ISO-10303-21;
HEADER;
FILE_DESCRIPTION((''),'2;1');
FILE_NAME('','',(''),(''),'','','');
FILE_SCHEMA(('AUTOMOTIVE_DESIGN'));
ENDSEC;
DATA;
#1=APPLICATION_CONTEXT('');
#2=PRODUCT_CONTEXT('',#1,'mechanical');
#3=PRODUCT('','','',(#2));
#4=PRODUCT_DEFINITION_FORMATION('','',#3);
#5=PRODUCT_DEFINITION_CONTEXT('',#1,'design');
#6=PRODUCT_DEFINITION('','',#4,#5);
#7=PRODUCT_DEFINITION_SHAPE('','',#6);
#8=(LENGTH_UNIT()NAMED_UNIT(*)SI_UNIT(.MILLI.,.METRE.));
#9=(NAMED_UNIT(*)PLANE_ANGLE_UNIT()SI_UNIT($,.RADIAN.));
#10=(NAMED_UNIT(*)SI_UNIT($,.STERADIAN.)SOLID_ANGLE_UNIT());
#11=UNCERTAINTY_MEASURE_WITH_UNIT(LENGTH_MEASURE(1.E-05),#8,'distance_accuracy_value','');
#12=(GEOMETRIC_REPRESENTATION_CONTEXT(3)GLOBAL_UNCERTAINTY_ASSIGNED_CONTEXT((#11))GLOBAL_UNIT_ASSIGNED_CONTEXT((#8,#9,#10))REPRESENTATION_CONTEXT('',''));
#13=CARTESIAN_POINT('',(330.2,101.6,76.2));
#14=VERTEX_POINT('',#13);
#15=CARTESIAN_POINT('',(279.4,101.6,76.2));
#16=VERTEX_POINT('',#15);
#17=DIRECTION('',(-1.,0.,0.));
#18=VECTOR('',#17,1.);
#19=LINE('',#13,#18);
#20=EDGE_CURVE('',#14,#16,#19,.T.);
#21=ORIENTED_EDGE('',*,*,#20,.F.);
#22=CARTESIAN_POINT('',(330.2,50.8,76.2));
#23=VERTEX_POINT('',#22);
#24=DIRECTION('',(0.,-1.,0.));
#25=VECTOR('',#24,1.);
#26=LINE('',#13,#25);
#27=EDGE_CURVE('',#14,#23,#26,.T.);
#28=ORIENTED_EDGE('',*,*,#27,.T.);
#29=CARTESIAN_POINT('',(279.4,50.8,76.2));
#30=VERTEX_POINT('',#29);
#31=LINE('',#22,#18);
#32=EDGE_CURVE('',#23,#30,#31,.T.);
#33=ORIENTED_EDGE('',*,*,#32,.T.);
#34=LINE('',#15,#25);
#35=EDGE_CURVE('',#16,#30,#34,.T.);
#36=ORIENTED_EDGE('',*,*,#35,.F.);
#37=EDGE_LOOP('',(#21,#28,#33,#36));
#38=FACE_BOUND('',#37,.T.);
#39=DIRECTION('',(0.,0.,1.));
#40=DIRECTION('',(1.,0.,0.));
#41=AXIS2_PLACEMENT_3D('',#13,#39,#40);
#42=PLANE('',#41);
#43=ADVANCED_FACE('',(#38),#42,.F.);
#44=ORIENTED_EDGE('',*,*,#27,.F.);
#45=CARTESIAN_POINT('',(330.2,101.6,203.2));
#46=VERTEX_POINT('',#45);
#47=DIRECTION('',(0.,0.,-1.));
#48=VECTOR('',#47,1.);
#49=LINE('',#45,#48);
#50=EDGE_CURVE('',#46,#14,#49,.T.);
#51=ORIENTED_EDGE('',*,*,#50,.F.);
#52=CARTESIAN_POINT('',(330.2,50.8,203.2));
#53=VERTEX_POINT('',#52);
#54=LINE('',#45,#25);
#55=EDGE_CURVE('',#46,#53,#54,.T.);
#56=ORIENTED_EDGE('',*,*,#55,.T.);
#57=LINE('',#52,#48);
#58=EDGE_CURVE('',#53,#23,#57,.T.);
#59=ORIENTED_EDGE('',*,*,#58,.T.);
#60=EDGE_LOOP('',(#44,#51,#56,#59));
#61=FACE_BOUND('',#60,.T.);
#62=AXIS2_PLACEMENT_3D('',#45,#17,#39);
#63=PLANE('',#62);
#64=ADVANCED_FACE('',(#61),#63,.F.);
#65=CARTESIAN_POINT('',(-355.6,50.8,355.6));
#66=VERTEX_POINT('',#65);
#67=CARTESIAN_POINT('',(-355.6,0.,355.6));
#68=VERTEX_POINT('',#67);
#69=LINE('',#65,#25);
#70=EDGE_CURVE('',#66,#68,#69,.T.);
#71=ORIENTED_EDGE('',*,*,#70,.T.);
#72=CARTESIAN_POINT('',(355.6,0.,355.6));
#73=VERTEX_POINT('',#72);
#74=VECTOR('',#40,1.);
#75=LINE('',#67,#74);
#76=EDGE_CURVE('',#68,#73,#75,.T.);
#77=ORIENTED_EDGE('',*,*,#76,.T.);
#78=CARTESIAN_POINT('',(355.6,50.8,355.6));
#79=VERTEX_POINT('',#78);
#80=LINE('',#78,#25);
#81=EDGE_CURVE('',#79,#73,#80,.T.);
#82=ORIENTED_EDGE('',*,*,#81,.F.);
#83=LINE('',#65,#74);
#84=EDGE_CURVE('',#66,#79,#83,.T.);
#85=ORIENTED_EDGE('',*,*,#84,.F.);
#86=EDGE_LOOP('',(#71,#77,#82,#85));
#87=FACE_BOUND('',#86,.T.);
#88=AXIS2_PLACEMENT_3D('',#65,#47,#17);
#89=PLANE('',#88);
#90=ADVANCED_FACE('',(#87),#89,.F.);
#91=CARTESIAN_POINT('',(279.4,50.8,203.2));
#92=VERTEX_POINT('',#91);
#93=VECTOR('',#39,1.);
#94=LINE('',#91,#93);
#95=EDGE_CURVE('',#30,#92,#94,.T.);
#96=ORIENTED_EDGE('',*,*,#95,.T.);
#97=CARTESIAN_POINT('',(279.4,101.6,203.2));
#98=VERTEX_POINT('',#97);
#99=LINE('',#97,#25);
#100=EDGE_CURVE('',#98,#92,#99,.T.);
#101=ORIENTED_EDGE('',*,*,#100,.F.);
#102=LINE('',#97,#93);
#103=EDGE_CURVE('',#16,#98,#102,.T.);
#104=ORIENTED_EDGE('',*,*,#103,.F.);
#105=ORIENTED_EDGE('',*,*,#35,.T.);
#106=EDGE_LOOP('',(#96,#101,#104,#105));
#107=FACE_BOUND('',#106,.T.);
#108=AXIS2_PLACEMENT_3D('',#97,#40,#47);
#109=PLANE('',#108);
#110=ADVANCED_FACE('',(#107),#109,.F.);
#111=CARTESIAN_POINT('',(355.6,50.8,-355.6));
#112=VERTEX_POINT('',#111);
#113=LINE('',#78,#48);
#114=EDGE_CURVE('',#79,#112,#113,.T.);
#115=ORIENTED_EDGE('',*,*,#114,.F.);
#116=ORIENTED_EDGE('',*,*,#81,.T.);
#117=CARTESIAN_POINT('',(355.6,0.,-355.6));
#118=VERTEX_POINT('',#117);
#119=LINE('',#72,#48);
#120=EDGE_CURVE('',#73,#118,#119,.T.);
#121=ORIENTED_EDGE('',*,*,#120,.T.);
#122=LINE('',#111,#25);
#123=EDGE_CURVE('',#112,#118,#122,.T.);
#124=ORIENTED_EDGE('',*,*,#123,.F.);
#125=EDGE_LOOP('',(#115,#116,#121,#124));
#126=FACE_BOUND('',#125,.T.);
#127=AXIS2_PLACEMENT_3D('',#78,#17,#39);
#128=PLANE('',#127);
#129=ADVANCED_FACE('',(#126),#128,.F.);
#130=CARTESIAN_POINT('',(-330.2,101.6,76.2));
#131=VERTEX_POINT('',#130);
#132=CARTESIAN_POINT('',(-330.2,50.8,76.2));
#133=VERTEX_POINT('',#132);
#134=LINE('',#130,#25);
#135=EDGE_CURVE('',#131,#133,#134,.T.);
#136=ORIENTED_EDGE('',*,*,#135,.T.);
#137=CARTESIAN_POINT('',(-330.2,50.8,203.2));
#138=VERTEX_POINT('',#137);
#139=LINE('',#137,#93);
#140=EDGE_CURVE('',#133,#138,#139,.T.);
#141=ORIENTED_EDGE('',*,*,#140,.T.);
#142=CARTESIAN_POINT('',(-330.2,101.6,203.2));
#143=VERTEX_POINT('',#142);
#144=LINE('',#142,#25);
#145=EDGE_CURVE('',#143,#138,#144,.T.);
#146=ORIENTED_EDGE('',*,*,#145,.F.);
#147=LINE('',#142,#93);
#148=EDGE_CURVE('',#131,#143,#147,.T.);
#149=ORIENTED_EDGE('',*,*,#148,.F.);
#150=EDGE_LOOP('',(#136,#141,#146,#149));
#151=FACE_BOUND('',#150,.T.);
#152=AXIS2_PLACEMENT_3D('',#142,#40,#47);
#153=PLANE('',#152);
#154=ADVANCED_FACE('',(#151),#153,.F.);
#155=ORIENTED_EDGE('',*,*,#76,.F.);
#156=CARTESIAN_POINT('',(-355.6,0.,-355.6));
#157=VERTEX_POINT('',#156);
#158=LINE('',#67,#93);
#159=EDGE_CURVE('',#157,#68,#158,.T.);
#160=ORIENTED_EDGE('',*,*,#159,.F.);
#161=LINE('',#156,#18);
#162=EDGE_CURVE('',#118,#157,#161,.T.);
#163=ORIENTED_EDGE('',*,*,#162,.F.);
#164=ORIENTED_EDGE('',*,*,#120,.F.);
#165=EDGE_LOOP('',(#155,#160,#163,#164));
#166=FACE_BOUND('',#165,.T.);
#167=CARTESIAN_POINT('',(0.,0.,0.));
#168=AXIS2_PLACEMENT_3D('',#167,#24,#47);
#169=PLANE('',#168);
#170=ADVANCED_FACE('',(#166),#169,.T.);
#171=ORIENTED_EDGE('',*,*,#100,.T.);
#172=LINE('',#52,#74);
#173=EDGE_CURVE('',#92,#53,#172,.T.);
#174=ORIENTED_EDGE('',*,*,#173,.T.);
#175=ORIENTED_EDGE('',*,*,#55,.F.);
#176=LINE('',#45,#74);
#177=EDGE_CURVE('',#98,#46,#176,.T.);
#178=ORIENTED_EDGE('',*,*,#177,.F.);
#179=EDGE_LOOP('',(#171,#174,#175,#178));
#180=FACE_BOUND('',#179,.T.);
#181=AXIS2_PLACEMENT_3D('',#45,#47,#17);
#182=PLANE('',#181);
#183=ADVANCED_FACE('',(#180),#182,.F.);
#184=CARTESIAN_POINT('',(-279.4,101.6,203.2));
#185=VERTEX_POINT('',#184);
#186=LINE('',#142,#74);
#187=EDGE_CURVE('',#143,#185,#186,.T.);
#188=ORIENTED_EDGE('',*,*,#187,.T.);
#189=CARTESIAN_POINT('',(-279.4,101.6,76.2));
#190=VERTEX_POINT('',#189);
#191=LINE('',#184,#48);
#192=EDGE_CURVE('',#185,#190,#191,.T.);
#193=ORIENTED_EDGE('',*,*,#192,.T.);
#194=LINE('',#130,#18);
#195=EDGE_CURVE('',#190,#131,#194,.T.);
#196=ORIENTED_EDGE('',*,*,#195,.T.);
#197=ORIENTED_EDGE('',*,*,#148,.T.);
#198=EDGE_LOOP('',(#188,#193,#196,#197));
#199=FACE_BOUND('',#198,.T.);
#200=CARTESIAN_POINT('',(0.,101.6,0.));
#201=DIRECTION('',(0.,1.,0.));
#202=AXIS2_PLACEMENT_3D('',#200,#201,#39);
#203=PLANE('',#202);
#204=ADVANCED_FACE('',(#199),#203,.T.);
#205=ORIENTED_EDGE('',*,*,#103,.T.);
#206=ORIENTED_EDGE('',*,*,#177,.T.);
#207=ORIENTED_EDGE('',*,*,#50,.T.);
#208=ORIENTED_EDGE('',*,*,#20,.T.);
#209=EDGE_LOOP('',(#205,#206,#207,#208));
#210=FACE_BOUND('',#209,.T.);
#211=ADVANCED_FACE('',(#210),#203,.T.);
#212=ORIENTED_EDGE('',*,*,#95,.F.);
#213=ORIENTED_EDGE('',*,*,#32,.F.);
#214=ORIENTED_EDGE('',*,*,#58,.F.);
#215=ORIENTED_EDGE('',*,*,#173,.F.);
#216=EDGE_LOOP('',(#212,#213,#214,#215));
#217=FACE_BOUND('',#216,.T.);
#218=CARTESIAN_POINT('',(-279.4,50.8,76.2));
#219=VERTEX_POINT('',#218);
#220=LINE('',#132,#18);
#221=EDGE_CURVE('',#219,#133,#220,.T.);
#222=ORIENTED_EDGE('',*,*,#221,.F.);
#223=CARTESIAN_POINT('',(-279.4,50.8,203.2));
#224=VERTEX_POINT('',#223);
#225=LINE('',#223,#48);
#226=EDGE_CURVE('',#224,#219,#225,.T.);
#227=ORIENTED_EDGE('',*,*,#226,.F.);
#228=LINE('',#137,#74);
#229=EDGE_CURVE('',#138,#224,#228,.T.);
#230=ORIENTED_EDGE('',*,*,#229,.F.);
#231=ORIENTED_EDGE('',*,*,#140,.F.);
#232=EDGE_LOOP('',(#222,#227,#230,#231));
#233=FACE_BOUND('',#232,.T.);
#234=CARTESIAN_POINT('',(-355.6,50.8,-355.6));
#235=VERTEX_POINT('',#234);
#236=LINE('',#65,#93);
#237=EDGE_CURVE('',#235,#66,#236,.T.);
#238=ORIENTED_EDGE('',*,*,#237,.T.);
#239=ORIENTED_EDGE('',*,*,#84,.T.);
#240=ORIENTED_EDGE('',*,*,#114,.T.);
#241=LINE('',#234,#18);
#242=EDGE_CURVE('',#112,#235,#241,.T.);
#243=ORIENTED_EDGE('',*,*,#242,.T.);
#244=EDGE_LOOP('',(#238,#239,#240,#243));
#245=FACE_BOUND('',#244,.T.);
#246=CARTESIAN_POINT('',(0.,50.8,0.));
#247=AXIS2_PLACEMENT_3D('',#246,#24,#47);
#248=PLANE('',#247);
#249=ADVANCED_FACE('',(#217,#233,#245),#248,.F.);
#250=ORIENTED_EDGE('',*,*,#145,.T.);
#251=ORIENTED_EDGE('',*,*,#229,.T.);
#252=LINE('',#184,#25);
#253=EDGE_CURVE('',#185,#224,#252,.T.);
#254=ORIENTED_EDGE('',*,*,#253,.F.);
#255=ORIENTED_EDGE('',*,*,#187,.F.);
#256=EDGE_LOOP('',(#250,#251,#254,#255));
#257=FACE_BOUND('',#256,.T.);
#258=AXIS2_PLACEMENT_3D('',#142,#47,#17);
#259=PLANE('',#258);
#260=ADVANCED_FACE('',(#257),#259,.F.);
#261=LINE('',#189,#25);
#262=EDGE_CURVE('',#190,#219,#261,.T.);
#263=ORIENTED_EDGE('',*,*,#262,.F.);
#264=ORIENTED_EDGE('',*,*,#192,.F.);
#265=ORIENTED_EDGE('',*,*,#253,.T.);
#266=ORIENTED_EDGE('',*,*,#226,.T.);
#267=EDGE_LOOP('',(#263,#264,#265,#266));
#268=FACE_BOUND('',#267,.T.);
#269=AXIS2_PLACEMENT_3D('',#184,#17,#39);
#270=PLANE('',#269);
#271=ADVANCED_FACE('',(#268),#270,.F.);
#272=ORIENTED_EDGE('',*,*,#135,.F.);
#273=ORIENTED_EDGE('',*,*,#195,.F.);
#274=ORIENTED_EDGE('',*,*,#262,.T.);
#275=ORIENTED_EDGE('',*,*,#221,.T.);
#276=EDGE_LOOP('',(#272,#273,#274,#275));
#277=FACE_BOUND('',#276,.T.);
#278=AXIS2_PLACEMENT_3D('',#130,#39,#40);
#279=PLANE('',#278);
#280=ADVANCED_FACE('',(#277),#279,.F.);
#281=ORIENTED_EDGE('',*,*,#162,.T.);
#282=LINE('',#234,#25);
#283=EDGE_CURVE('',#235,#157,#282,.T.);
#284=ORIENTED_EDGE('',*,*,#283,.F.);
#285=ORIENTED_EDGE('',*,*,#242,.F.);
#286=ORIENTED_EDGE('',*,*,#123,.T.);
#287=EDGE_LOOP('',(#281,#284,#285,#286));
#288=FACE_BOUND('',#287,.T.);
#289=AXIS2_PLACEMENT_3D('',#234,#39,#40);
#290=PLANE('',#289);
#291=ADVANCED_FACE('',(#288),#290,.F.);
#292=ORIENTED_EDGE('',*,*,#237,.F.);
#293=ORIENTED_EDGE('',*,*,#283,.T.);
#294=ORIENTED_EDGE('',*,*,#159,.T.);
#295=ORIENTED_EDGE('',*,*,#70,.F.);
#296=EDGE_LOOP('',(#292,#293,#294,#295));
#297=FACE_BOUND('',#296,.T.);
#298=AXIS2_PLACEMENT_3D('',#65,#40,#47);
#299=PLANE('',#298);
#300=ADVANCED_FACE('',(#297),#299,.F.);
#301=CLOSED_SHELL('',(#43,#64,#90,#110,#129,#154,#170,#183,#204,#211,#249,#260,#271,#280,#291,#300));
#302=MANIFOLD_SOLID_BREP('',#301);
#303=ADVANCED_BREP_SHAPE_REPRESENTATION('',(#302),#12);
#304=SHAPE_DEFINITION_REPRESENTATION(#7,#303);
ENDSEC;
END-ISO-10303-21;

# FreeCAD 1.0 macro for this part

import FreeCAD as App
import Part
import Sketcher

V = App.Vector
Q = App.Units.Quantity

doc = App.newDocument("Part")
body = doc.addObject("PartDesign::Body", "Body")

# Sketch on XZ plane
sketch1 = doc.addObject("Sketcher::SketchObject", "Sketch")
body.addObject(sketch1)
sketch1.AttachmentSupport = (doc.XZ_Plane, [""])
sketch1.MapMode = "FlatFace"
sketch1.addGeometry(Part.LineSegment(V(-356, -356, 0), V(-356, 356, 0)), False)
sketch1.addGeometry(Part.LineSegment(V(-356, 356, 0), V(356, 356, 0)), False)
sketch1.addGeometry(Part.LineSegment(V(356, 356, 0), V(356, -356, 0)), False)
sketch1.addGeometry(Part.LineSegment(V(356, -356, 0), V(-356, -356, 0)), False)
sketch1.addConstraint(Sketcher.Constraint("Coincident", 0, 2, 1, 1))
sketch1.addConstraint(Sketcher.Constraint("Coincident", 1, 2, 2, 1))
sketch1.addConstraint(Sketcher.Constraint("Coincident", 2, 2, 3, 1))
sketch1.addConstraint(Sketcher.Constraint("Coincident", 3, 2, 0, 1))
sketch1.addConstraint(Sketcher.Constraint("Vertical", 0))
sketch1.addConstraint(Sketcher.Constraint("Horizontal", 1))
sketch1.addConstraint(Sketcher.Constraint("Vertical", 2))
sketch1.addConstraint(Sketcher.Constraint("Horizontal", 3))
sketch1.addConstraint(Sketcher.Constraint("Symmetric", 0, 2, 2, 2, -1, 1))
sketch1.addConstraint(Sketcher.Constraint("Equal", 3, 0))
sketch1.addConstraint(Sketcher.Constraint("DistanceX", 1, 1, 1, 2, Q("28 in")))
pad1 = doc.addObject("PartDesign::Pad", "Pad")
body.addObject(pad1)
pad1.Profile = sketch1
pad1.Length = Q("2 in")
pad1.Reversed = True

# Sketch on XZ plane
sketch2 = doc.addObject("Sketcher::SketchObject", "Sketch001")
body.addObject(sketch2)
sketch2.AttachmentSupport = (doc.XZ_Plane, [""])
sketch2.MapMode = "FlatFace"
sketch2.AttachmentOffset = App.Placement(V(0, 0, -2 * 25.4), App.Rotation())
sketch2.addGeometry(Part.LineSegment(V(279, 76, 0), V(279, 203, 0)), False)
sketch2.addGeometry(Part.LineSegment(V(279, 203, 0), V(330, 203, 0)), False)
sketch2.addGeometry(Part.LineSegment(V(330, 203, 0), V(330, 76, 0)), False)
sketch2.addGeometry(Part.LineSegment(V(330, 76, 0), V(279, 76, 0)), False)
sketch2.addGeometry(Part.LineSegment(V(-330, 76, 0), V(-330, 203, 0)), False)
sketch2.addGeometry(Part.LineSegment(V(-330, 203, 0), V(-279, 203, 0)), False)
sketch2.addGeometry(Part.LineSegment(V(-279, 203, 0), V(-279, 76, 0)), False)
sketch2.addGeometry(Part.LineSegment(V(-279, 76, 0), V(-330, 76, 0)), False)
sketch2.addConstraint(Sketcher.Constraint("Coincident", 0, 2, 1, 1))
sketch2.addConstraint(Sketcher.Constraint("Coincident", 1, 2, 2, 1))
sketch2.addConstraint(Sketcher.Constraint("Coincident", 2, 2, 3, 1))
sketch2.addConstraint(Sketcher.Constraint("Coincident", 3, 2, 0, 1))
sketch2.addConstraint(Sketcher.Constraint("Coincident", 4, 2, 5, 1))
sketch2.addConstraint(Sketcher.Constraint("Coincident", 5, 2, 6, 1))
sketch2.addConstraint(Sketcher.Constraint("Coincident", 6, 2, 7, 1))
sketch2.addConstraint(Sketcher.Constraint("Coincident", 7, 2, 4, 1))
sketch2.addConstraint(Sketcher.Constraint("Vertical", 0))
sketch2.addConstraint(Sketcher.Constraint("Horizontal", 1))
sketch2.addConstraint(Sketcher.Constraint("Vertical", 2))
sketch2.addConstraint(Sketcher.Constraint("Horizontal", 3))
sketch2.addConstraint(Sketcher.Constraint("Vertical", 4))
sketch2.addConstraint(Sketcher.Constraint("Horizontal", 5))
sketch2.addConstraint(Sketcher.Constraint("Vertical", 6))
sketch2.addConstraint(Sketcher.Constraint("Horizontal", 7))
sketch2.addConstraint(Sketcher.Constraint("Symmetric", 1, 2, 4, 2, -2))
sketch2.addConstraint(Sketcher.Constraint("Symmetric", 3, 2, 6, 2, -2))
sketch2.addConstraint(Sketcher.Constraint("DistanceX", 1, 1, 1, 2, Q("2 in")))
sketch2.addConstraint(Sketcher.Constraint("DistanceY", 0, 1, 0, 2, Q("5 in")))
sketch2.addConstraint(Sketcher.Constraint("DistanceX", -1, 1, 0, 2, Q("11 in")))
sketch2.addConstraint(Sketcher.Constraint("DistanceY", -1, 1, 0, 2, Q("8 in")))
pad2 = doc.addObject("PartDesign::Pad", "Pad001")
body.addObject(pad2)
pad2.Profile = sketch2
pad2.Length = Q("2 in")
pad2.Reversed = True

doc.recompute()
